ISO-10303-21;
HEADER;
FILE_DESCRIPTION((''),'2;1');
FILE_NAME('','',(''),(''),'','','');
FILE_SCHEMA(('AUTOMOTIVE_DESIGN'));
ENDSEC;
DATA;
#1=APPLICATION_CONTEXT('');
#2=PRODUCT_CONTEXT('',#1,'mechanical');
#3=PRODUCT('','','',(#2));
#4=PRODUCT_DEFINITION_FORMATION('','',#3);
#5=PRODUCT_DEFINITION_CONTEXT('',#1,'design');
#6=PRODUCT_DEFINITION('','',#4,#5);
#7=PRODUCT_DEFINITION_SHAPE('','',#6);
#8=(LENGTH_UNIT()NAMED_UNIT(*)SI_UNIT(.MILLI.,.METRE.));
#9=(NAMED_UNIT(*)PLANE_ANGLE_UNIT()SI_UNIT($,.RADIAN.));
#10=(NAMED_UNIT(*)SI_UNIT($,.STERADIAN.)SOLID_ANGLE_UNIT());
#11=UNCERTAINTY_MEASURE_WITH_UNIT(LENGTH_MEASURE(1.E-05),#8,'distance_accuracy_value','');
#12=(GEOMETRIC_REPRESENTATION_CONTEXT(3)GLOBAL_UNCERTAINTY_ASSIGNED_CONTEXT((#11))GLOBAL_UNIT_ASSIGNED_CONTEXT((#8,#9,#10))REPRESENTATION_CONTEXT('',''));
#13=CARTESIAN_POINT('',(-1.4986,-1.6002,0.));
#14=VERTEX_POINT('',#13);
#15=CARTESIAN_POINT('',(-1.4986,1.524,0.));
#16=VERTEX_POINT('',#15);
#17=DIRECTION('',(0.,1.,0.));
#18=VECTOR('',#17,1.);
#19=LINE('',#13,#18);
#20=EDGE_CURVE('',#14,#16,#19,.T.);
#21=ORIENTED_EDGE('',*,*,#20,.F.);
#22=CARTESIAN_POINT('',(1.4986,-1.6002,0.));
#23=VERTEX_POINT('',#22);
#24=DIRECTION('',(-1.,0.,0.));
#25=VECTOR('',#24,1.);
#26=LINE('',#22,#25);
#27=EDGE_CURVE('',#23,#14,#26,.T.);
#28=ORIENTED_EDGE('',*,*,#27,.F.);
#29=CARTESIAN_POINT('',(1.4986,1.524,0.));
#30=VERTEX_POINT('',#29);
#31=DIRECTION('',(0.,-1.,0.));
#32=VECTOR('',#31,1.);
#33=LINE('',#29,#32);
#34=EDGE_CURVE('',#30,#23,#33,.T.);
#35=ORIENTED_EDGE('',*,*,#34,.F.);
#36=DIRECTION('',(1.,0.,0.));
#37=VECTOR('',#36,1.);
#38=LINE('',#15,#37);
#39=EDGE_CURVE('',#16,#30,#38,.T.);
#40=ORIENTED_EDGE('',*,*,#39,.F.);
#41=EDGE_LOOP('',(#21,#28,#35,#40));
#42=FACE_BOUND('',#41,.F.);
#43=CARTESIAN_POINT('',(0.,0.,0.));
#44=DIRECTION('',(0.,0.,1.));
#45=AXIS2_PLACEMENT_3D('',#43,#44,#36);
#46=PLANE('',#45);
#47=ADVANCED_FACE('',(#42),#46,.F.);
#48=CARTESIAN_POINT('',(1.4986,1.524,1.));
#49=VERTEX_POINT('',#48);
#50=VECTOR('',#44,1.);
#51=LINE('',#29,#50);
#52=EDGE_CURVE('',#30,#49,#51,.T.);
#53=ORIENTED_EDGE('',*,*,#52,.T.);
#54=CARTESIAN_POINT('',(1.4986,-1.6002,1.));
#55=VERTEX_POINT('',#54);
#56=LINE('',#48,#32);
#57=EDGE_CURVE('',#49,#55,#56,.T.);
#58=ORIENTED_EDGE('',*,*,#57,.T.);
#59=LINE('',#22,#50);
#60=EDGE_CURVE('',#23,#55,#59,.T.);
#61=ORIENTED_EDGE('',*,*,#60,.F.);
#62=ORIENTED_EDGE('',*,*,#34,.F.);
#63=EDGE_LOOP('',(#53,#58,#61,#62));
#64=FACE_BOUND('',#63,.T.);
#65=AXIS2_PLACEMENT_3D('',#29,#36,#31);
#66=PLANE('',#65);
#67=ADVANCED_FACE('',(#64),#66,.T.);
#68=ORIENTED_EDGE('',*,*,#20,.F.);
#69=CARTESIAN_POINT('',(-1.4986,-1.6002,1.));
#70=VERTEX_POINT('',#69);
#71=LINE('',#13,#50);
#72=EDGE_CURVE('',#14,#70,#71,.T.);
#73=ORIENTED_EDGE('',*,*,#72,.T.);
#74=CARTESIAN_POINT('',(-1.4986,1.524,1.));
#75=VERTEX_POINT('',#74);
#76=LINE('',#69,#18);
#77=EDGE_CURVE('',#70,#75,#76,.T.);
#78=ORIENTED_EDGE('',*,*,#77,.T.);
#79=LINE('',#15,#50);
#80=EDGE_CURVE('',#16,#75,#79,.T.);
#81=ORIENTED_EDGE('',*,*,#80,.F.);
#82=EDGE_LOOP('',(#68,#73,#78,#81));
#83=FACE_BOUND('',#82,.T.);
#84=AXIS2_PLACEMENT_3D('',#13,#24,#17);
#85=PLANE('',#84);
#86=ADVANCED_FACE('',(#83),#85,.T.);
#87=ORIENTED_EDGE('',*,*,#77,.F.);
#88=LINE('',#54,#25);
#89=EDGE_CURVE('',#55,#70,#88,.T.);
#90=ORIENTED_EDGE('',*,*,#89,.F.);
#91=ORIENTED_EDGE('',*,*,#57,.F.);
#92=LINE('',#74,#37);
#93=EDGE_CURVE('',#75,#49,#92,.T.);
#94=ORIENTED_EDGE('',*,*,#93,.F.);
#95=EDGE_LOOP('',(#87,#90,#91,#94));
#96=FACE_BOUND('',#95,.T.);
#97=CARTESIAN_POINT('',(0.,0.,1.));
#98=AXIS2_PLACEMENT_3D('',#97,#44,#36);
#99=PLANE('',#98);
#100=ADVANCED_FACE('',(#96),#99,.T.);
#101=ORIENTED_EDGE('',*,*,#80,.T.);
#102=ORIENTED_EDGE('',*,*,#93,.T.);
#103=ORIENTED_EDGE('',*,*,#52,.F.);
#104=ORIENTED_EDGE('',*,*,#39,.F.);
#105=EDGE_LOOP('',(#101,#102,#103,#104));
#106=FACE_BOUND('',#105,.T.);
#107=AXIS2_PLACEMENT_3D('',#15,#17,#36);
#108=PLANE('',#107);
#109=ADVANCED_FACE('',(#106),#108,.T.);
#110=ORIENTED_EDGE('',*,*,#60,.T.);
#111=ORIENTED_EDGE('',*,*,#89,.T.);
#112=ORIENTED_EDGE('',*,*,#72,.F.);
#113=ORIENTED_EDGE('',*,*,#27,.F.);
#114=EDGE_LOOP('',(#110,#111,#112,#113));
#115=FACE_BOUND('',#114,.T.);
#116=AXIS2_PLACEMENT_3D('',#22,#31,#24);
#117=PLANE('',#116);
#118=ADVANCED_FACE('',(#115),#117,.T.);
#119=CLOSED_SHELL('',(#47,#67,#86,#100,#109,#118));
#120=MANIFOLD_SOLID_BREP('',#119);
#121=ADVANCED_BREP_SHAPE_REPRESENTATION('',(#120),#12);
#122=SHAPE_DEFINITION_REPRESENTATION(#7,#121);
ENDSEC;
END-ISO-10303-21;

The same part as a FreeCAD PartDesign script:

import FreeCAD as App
import Part
import Sketcher
from FreeCAD import Vector
Q = App.Units.Quantity

doc = App.newDocument("Part")
params = doc.addObject("Spreadsheet::Sheet", "Params")
for row, (alias, value) in enumerate([
    ("sketch1_width", "0.118 in"),
    ("sketch1_height", "0.123 in"),
    ("pad1_length", "1 mm"),
], start=1):
    params.set(f"A{row}", alias)
    params.set(f"B{row}", "=" + value)
    params.setAlias(f"B{row}", alias)

body = doc.addObject("PartDesign::Body", "Body")

# Sketch on XY plane
sketch1 = body.newObject("Sketcher::SketchObject", "Sketch")
sketch1.AttachmentSupport = (doc.getObject("XY_Plane"), [""])
sketch1.MapMode = "FlatFace"
sketch1.addGeometry(Part.LineSegment(Vector(1.5, 1.5, 0), Vector(-1.5, 1.5, 0)), False)
sketch1.addGeometry(Part.LineSegment(Vector(-1.5, 1.5, 0), Vector(-1.5, -1.6, 0)), False)
sketch1.addGeometry(Part.LineSegment(Vector(-1.5, -1.6, 0), Vector(1.5, -1.6, 0)), False)
sketch1.addGeometry(Part.LineSegment(Vector(1.5, -1.6, 0), Vector(1.5, 1.5, 0)), False)
sketch1.addConstraint(Sketcher.Constraint("Coincident", 0, 2, 1, 1))
sketch1.addConstraint(Sketcher.Constraint("Coincident", 1, 2, 2, 1))
sketch1.addConstraint(Sketcher.Constraint("Coincident", 2, 2, 3, 1))
sketch1.addConstraint(Sketcher.Constraint("Coincident", 3, 2, 0, 1))
sketch1.addConstraint(Sketcher.Constraint("Horizontal", 0))
sketch1.addConstraint(Sketcher.Constraint("Vertical", 1))
sketch1.addConstraint(Sketcher.Constraint("Horizontal", 2))
sketch1.addConstraint(Sketcher.Constraint("Vertical", 3))
sketch1.addConstraint(Sketcher.Constraint("DistanceX", 0, 2, 0, 1, Q("0.118 in")))
sketch1.addConstraint(Sketcher.Constraint("DistanceY", 1, 2, 1, 1, Q("0.123 in")))
sketch1.addConstraint(Sketcher.Constraint("DistanceY", -1, 1, 0, 2, Q("0.06 in")))
sketch1.addConstraint(Sketcher.Constraint("DistanceX", 0, 2, -1, 1, Q("0.059 in")))
sketch1.setExpression("Constraints[8]", "Params.sketch1_width")
sketch1.setExpression("Constraints[9]", "Params.sketch1_height")
pad1 = body.newObject("PartDesign::Pad", "Pad")
pad1.Profile = sketch1
pad1.setExpression("Length", "Params.pad1_length")

doc.recompute()
